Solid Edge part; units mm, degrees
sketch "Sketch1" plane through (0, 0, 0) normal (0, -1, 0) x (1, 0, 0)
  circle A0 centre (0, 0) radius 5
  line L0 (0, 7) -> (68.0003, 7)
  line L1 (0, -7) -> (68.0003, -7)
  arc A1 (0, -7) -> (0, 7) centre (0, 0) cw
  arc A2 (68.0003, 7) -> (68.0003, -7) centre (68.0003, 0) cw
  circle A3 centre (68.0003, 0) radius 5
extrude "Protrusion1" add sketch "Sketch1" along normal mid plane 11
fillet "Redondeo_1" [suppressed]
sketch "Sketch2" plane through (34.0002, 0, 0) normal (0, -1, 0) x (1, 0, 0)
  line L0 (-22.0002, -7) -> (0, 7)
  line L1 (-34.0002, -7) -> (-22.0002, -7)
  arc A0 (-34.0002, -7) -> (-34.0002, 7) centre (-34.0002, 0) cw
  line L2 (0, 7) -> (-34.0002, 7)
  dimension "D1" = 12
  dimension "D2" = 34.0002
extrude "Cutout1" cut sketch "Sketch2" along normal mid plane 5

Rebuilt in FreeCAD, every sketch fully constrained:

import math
import FreeCAD as App
import Part
import Sketcher
from FreeCAD import Vector

doc = App.newDocument("Part")
body = doc.addObject("PartDesign::Body", "Body")

sketch1 = body.newObject("Sketcher::SketchObject", "Sketch")
sketch1.AttachmentSupport = (doc.getObject("XZ_Plane"), [""])
sketch1.MapMode = "FlatFace"
sketch1.addGeometry([
    Part.LineSegment(Vector(68, 7, 0), Vector(0, 7, 0)),
    Part.ArcOfCircle(Part.Circle(Vector(0, 0, 0), Vector(0, 0, 1), 7), math.radians(90), math.radians(270)),
    Part.LineSegment(Vector(0, -7, 0), Vector(68, -7, 0)),
    Part.ArcOfCircle(Part.Circle(Vector(68, 0, 0), Vector(0, 0, 1), 7), math.radians(-90), math.radians(90)),
    Part.Circle(Vector(0, 0, 0), Vector(0, 0, 1), 5),
    Part.Circle(Vector(68, 0, 0), Vector(0, 0, 1), 5),
], False)
sketch1.addConstraint([
    Sketcher.Constraint("Tangent", 0, 2, 1, 1),
    Sketcher.Constraint("Tangent", 1, 2, 2, 1),
    Sketcher.Constraint("Tangent", 2, 2, 3, 1),
    Sketcher.Constraint("Tangent", 3, 2, 0, 1),
    Sketcher.Constraint("Horizontal", 0),
    Sketcher.Constraint("Horizontal", 2),
    Sketcher.Constraint("Coincident", 1, 3, -1, 1),
    Sketcher.Constraint("Coincident", 4, 3, -1, 1),
    Sketcher.Constraint("Coincident", 5, 3, 3, 3),
    Sketcher.Constraint("Equal", 4, 5),
    Sketcher.Constraint("Diameter", 4, 10.0),
    Sketcher.Constraint("Radius", 1, 7.0),
    Sketcher.Constraint("DistanceX", 0, 2, 0, 1, 68.0003),
])
pad1 = body.newObject("PartDesign::Pad", "Pad")
pad1.Profile = sketch1
pad1.Length = 11
pad1.Midplane = True

sketch2 = body.newObject("Sketcher::SketchObject", "Sketch001")
sketch2.AttachmentSupport = (doc.getObject("XZ_Plane"), [""])
sketch2.MapMode = "FlatFace"
sketch2.addGeometry([
    Part.LineSegment(Vector(0, -7, 0), Vector(12, -7, 0)),
    Part.LineSegment(Vector(12, -7, 0), Vector(34, 7, 0)),
    Part.LineSegment(Vector(34, 7, 0), Vector(0, 7, 0)),
    Part.ArcOfCircle(Part.Circle(Vector(0, 0, 0), Vector(0, 0, 1), 7), math.radians(90), math.radians(270)),
], False)
sketch2.addConstraint([
    Sketcher.Constraint("Coincident", 0, 2, 1, 1),
    Sketcher.Constraint("Coincident", 1, 2, 2, 1),
    Sketcher.Constraint("Tangent", 2, 2, 3, 1),
    Sketcher.Constraint("Tangent", 3, 2, 0, 1),
    Sketcher.Constraint("Horizontal", 0),
    Sketcher.Constraint("Horizontal", 2),
    Sketcher.Constraint("Coincident", 3, 3, -1, 1),
    Sketcher.Constraint("Radius", 3, 7.0),
    Sketcher.Constraint("DistanceX", 0, 1, 0, 2, 12.0),
    Sketcher.Constraint("DistanceX", 2, 2, 2, 1, 34.0002),
])
pocket1 = body.newObject("PartDesign::Pocket", "Pocket")
pocket1.Profile = sketch2
pocket1.Length = 5
pocket1.Midplane = True

doc.recompute()
